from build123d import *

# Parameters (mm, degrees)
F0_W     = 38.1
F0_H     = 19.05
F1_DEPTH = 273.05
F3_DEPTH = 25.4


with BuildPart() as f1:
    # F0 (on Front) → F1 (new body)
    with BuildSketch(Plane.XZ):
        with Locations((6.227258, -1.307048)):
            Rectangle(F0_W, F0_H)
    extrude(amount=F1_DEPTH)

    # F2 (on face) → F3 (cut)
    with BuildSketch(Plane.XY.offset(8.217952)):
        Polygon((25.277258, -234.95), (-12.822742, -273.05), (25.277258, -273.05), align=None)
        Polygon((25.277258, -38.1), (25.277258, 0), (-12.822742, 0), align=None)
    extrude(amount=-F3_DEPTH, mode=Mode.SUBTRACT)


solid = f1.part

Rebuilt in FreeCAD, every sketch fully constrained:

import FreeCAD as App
import Part
import Sketcher
Q = App.Units.Quantity


def add_polygon(sketch, points):
    """Adds a closed chain of lines whose ends are joined by coincident constraints."""
    first, n = sketch.GeometryCount, len(points)
    for a, b in zip(points, points[1:] + points[:1]):
        sketch.addGeometry(Part.LineSegment(App.Vector(*a, 0), App.Vector(*b, 0)), False)
    for i in range(n):
        sketch.addConstraint(Sketcher.Constraint("Coincident", first + i, 2, first + (i + 1) % n, 1))

doc = App.newDocument("Part")
body = doc.addObject("PartDesign::Body", "Body")

sketch1 = body.newObject("Sketcher::SketchObject", "Sketch")
sketch1.AttachmentSupport = (doc.getObject("XZ_Plane"), [""])
sketch1.MapMode = "FlatFace"
add_polygon(sketch1, [(-13, 8), (-13, -11), (25, -11), (25, 8)])
sketch1.addConstraint(Sketcher.Constraint("Vertical", 0))
sketch1.addConstraint(Sketcher.Constraint("Horizontal", 1))
sketch1.addConstraint(Sketcher.Constraint("Vertical", 2))
sketch1.addConstraint(Sketcher.Constraint("Horizontal", 3))
sketch1.addConstraint(Sketcher.Constraint("DistanceX", 1, 1, 1, 2, Q("1.5 in")))
sketch1.addConstraint(Sketcher.Constraint("DistanceY", 0, 2, 0, 1, Q("0.75 in")))
sketch1.addConstraint(Sketcher.Constraint("DistanceX", -1, 1, 1, 2, 25.277258))
sketch1.addConstraint(Sketcher.Constraint("DistanceY", 0, 2, -1, 1, 10.832048))
pad1 = body.newObject("PartDesign::Pad", "Pad")
pad1.Profile = sketch1
pad1.Length = Q("10.75 in")

sketch2 = body.newObject("Sketcher::SketchObject", "Sketch001")
sketch2.AttachmentSupport = (doc.getObject("XY_Plane"), [""])
sketch2.MapMode = "FlatFace"
sketch2.AttachmentOffset = App.Placement(App.Vector(0, 0, 8.217952), App.Rotation())
add_polygon(sketch2, [(25, -235), (-13, -273), (25, -273)])
add_polygon(sketch2, [(25, -38), (25, 0), (-13, 0)])
sketch2.addConstraint(Sketcher.Constraint("Horizontal", 1))
sketch2.addConstraint(Sketcher.Constraint("Vertical", 2))
sketch2.addConstraint(Sketcher.Constraint("Vertical", 3))
sketch2.addConstraint(Sketcher.Constraint("Horizontal", 4))
sketch2.addConstraint(Sketcher.Constraint("PointOnObject", 3, 2, -1))
sketch2.addConstraint(Sketcher.Constraint("Perpendicular", 0, 5))
sketch2.addConstraint(Sketcher.Constraint("Vertical", 2, 2, 3, 2))
sketch2.addConstraint(Sketcher.Constraint("Vertical", 0, 2, 4, 2))
sketch2.addConstraint(Sketcher.Constraint("Equal", 4, 2))
sketch2.addConstraint(Sketcher.Constraint("DistanceX", 1, 1, 1, 2, Q("1.5 in")))
sketch2.addConstraint(Sketcher.Constraint("DistanceY", 0, 2, -1, 1, Q("10.75 in")))
sketch2.addConstraint(Sketcher.Constraint("DistanceX", -1, 1, 1, 2, 25.277258))
pocket1 = body.newObject("PartDesign::Pocket", "Pocket")
pocket1.Profile = sketch2
pocket1.Length = Q("1 in")

doc.recompute()
